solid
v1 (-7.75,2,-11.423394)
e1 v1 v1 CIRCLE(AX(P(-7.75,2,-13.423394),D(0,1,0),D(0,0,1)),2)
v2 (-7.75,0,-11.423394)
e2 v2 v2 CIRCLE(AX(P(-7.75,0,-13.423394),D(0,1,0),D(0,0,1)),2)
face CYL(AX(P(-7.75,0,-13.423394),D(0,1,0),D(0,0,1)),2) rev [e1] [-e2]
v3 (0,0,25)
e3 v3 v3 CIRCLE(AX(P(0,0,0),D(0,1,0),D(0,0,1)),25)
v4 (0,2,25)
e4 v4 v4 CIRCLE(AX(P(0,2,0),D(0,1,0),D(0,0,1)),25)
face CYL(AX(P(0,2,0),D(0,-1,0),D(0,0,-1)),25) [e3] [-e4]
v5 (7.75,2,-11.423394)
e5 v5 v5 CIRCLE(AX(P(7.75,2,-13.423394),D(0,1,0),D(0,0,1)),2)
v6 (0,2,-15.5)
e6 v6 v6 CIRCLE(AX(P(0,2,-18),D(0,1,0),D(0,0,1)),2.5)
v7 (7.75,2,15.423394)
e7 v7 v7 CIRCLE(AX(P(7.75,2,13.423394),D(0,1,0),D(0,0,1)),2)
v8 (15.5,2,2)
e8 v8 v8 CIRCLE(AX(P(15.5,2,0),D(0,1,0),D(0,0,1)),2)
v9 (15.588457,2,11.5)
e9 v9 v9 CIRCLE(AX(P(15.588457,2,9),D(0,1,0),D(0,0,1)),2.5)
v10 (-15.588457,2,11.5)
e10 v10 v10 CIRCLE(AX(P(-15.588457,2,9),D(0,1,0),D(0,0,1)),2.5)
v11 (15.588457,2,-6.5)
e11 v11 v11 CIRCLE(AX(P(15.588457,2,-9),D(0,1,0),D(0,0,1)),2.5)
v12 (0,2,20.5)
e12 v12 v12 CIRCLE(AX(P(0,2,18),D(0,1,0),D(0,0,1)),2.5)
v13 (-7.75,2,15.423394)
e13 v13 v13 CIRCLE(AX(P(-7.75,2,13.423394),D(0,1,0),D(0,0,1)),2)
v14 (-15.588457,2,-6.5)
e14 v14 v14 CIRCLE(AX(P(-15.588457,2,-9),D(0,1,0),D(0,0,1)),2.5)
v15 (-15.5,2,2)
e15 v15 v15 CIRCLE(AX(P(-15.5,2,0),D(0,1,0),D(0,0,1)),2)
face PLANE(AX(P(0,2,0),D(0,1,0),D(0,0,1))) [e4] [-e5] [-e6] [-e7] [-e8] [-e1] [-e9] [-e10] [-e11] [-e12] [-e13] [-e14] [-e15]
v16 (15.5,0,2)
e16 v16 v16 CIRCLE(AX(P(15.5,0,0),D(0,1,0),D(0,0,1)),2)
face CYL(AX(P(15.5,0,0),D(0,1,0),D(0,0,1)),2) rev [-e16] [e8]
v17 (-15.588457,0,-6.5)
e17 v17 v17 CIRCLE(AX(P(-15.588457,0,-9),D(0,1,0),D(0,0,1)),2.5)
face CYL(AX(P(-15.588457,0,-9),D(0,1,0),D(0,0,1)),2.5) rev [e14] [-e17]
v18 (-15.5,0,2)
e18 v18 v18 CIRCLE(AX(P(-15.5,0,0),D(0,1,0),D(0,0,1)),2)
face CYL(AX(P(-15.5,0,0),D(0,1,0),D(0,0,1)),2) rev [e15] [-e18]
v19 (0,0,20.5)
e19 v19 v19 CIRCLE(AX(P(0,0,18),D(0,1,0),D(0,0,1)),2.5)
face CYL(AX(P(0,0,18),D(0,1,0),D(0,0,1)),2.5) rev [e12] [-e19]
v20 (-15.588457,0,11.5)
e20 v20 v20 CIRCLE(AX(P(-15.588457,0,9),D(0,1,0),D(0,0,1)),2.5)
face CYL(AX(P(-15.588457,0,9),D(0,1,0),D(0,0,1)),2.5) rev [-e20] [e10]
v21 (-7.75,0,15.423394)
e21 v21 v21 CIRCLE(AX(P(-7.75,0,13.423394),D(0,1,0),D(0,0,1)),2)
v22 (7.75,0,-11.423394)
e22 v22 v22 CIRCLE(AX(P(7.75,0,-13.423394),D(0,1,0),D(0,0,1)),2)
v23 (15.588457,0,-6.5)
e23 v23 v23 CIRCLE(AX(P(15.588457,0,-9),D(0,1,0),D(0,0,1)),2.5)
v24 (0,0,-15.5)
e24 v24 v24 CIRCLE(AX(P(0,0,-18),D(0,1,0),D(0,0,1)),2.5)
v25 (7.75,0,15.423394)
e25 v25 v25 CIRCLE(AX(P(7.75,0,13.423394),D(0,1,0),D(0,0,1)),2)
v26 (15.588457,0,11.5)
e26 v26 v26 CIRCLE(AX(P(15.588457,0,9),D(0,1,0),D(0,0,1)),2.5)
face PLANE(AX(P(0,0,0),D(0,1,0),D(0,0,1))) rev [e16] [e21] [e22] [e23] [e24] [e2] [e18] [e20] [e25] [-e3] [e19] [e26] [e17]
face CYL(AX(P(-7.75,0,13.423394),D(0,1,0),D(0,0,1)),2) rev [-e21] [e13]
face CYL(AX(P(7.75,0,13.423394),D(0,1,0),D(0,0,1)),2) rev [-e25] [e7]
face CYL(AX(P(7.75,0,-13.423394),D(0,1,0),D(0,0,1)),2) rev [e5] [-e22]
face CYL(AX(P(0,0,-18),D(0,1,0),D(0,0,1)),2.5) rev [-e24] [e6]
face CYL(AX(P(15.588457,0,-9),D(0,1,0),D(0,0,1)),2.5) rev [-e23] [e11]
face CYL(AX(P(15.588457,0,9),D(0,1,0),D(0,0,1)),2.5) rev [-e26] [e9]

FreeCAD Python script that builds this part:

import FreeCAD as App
import Part
import Sketcher

V = App.Vector

doc = App.newDocument("Part")
params = doc.addObject("Spreadsheet::Sheet", "Params")
for row, (alias, value) in enumerate([
    ("sketch1_diameter", "50 mm"),
    ("pad1_length", "2 mm"),
    ("sketch2_diameter", "5 mm"),
    ("sketch2_diameter2", "4 mm"),
    ("pocket1_length", "2 mm"),
], start=1):
    params.set(f"A{row}", alias)
    params.set(f"B{row}", "=" + value)
    params.setAlias(f"B{row}", alias)

body = doc.addObject("PartDesign::Body", "Body")

sketch1 = body.newObject("Sketcher::SketchObject", "Sketch")
sketch1.AttachmentSupport = (doc.getObject("XZ_Plane"), [""])
sketch1.MapMode = "FlatFace"
sketch1.addGeometry(Part.Circle(V(0, 0, 0), V(0, 0, 1), 25), False)
sketch1.addConstraint(Sketcher.Constraint("Coincident", 0, 3, -1, 1))
sketch1.addConstraint(Sketcher.Constraint("Diameter", 0, 50.0))
sketch1.setExpression("Constraints[1]", "Params.sketch1_diameter")
pad1 = body.newObject("PartDesign::Pad", "Pad")
pad1.Profile = sketch1
pad1.setExpression("Length", "Params.pad1_length")
pad1.Reversed = True

sketch2 = body.newObject("Sketcher::SketchObject", "Sketch001")
sketch2.AttachmentSupport = (doc.getObject("XZ_Plane"), [""])
sketch2.MapMode = "FlatFace"
sketch2.AttachmentOffset = App.Placement(V(0, 0, -2), App.Rotation())
sketch2.addGeometry(Part.Circle(V(0, -18, 0), V(0, 0, 1), 2.5), False)
sketch2.addGeometry(Part.Circle(V(15.588457, -9, 0), V(0, 0, 1), 2.5), False)
sketch2.addGeometry(Part.Circle(V(15.588457, 9, 0), V(0, 0, 1), 2.5), False)
sketch2.addGeometry(Part.Circle(V(0, 18, 0), V(0, 0, 1), 2.5), False)
sketch2.addGeometry(Part.Circle(V(-15.588457, 9, 0), V(0, 0, 1), 2.5), False)
sketch2.addGeometry(Part.Circle(V(-15.588457, -9, 0), V(0, 0, 1), 2.5), False)
sketch2.addGeometry(Part.Circle(V(-15.5, 0, 0), V(0, 0, 1), 2), False)
sketch2.addGeometry(Part.Circle(V(-7.75, -13.423394, 0), V(0, 0, 1), 2), False)
sketch2.addGeometry(Part.Circle(V(7.75, -13.423394, 0), V(0, 0, 1), 2), False)
sketch2.addGeometry(Part.Circle(V(15.5, 0, 0), V(0, 0, 1), 2), False)
sketch2.addGeometry(Part.Circle(V(7.75, 13.423394, 0), V(0, 0, 1), 2), False)
sketch2.addGeometry(Part.Circle(V(-7.75, 13.423394, 0), V(0, 0, 1), 2), False)
sketch2.addConstraint(Sketcher.Constraint("Equal", 0, 1))
sketch2.addConstraint(Sketcher.Constraint("Equal", 1, 2))
sketch2.addConstraint(Sketcher.Constraint("Equal", 2, 3))
sketch2.addConstraint(Sketcher.Constraint("Equal", 3, 4))
sketch2.addConstraint(Sketcher.Constraint("Equal", 4, 5))
sketch2.addConstraint(Sketcher.Constraint("Equal", 6, 7))
sketch2.addConstraint(Sketcher.Constraint("Equal", 7, 8))
sketch2.addConstraint(Sketcher.Constraint("Equal", 8, 9))
sketch2.addConstraint(Sketcher.Constraint("Equal", 9, 10))
sketch2.addConstraint(Sketcher.Constraint("Equal", 10, 11))
sketch2.addConstraint(Sketcher.Constraint("Symmetric", 0, 3, 3, 3, -1, 1))
sketch2.addConstraint(Sketcher.Constraint("Symmetric", 1, 3, 4, 3, -1, 1))
sketch2.addConstraint(Sketcher.Constraint("Symmetric", 2, 3, 5, 3, -1, 1))
sketch2.addConstraint(Sketcher.Constraint("Symmetric", 6, 3, 9, 3, -1, 1))
sketch2.addConstraint(Sketcher.Constraint("Symmetric", 7, 3, 10, 3, -1, 1))
sketch2.addConstraint(Sketcher.Constraint("Symmetric", 8, 3, 11, 3, -1, 1))
sketch2.addConstraint(Sketcher.Constraint("Symmetric", 2, 3, 4, 3, -2))
sketch2.addConstraint(Sketcher.Constraint("Symmetric", 7, 3, 8, 3, -2))
sketch2.addConstraint(Sketcher.Constraint("PointOnObject", 0, 3, -2))
sketch2.addConstraint(Sketcher.Constraint("PointOnObject", 6, 3, -1))
sketch2.addConstraint(Sketcher.Constraint("Diameter", 0, 5.0))
sketch2.addConstraint(Sketcher.Constraint("Diameter", 6, 4.0))
sketch2.addConstraint(Sketcher.Constraint("DistanceY", 0, 3, -1, 1, 18.0))
sketch2.addConstraint(Sketcher.Constraint("DistanceY", 1, 3, -1, 1, 9.0))
sketch2.addConstraint(Sketcher.Constraint("DistanceX", 6, 3, -1, 1, 15.5))
sketch2.addConstraint(Sketcher.Constraint("DistanceX", 7, 3, 8, 3, 15.5))
sketch2.addConstraint(Sketcher.Constraint("DistanceX", -1, 1, 1, 3, 15.588457))
sketch2.addConstraint(Sketcher.Constraint("DistanceY", 7, 3, -1, 1, 13.423394))
sketch2.setExpression("Constraints[20]", "Params.sketch2_diameter")
sketch2.setExpression("Constraints[21]", "Params.sketch2_diameter2")
pocket1 = body.newObject("PartDesign::Pocket", "Pocket")
pocket1.Profile = sketch2
pocket1.setExpression("Length", "Params.pocket1_length")
pocket1.Reversed = True

doc.recompute()
